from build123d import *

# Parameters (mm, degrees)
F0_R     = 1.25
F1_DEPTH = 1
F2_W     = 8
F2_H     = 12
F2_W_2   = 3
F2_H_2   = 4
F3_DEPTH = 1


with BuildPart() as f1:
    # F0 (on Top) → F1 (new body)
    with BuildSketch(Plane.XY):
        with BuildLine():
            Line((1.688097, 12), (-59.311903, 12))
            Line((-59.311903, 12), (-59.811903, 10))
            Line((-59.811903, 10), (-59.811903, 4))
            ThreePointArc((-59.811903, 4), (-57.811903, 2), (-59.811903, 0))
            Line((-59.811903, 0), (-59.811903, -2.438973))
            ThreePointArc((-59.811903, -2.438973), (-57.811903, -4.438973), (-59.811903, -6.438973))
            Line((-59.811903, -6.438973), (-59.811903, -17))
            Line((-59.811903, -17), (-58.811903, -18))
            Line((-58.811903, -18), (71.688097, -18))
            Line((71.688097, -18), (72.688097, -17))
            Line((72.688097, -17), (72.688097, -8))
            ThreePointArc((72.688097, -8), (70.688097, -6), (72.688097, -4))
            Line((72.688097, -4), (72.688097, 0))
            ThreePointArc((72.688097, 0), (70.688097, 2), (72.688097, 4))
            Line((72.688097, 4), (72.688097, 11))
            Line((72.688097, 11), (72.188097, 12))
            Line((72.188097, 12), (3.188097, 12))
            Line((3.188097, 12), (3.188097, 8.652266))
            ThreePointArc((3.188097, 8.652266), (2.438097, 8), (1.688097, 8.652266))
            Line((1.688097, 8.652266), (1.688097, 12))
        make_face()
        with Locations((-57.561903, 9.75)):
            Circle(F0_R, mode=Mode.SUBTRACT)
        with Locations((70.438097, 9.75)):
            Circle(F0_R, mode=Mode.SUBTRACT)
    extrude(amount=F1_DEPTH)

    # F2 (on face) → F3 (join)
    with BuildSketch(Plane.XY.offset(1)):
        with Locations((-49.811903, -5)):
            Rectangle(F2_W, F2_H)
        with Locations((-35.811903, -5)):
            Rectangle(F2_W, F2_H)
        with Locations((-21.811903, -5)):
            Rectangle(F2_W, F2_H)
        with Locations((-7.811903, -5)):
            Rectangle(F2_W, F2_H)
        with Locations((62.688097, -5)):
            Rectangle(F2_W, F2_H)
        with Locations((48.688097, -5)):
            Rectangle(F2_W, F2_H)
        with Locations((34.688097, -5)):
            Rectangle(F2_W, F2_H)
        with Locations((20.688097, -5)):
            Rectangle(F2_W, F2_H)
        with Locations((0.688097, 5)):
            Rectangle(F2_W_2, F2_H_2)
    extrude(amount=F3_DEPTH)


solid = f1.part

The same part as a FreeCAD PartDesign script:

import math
import FreeCAD as App
import Part
import Sketcher

V = App.Vector
Q = App.Units.Quantity

doc = App.newDocument("Part")
body = doc.addObject("PartDesign::Body", "Body")

# Sketch on XY plane
sketch1 = body.newObject("Sketcher::SketchObject", "Sketch")
sketch1.AttachmentSupport = (doc.getObject("XY_Plane"), [""])
sketch1.MapMode = "FlatFace"
sketch1.addGeometry([
    Part.LineSegment(V(1.7, 12, 0), V(-59.3, 12, 0)),  # 0
    Part.LineSegment(V(-59.3, 12, 0), V(-59.8, 10, 0)),  # 1
    Part.LineSegment(V(-59.8, 10, 0), V(-59.8, 4, 0)),  # 2
    Part.ArcOfCircle(Part.Circle(V(-59.8, 2, 0), V(0, 0, 1), 2), math.radians(-90), math.radians(90)),  # 3
    Part.LineSegment(V(-59.8, 0, 0), V(-59.8, -2.4, 0)),  # 4
    Part.ArcOfCircle(Part.Circle(V(-59.8, -4.4, 0), V(0, 0, 1), 2), math.radians(-90), math.radians(90)),  # 5
    Part.LineSegment(V(-59.8, -6.4, 0), V(-59.8, -17, 0)),  # 6
    Part.LineSegment(V(-59.8, -17, 0), V(-58.8, -18, 0)),  # 7
    Part.LineSegment(V(-58.8, -18, 0), V(71.7, -18, 0)),  # 8
    Part.LineSegment(V(71.7, -18, 0), V(72.7, -17, 0)),  # 9
    Part.LineSegment(V(72.7, -17, 0), V(72.7, -8, 0)),  # 10
    Part.ArcOfCircle(Part.Circle(V(72.7, -6, 0), V(0, 0, 1), 2), math.radians(90), math.radians(270)),  # 11
    Part.LineSegment(V(72.7, -4, 0), V(72.7, 0, 0)),  # 12
    Part.ArcOfCircle(Part.Circle(V(72.7, 2, 0), V(0, 0, 1), 2), math.radians(90), math.radians(270)),  # 13
    Part.LineSegment(V(72.7, 4, 0), V(72.7, 11, 0)),  # 14
    Part.LineSegment(V(72.7, 11, 0), V(72.2, 12, 0)),  # 15
    Part.LineSegment(V(72.2, 12, 0), V(3.2, 12, 0)),  # 16
    Part.LineSegment(V(3.2, 12, 0), V(3.2, 8.7, 0)),  # 17
    Part.ArcOfCircle(Part.Circle(V(2.4, 8.8, 0), V(0, 0, 1), 0.8), math.radians(-172), math.radians(-8)),  # 18
    Part.LineSegment(V(1.7, 8.7, 0), V(1.7, 12, 0)),  # 19
    Part.Circle(V(-57.6, 9.8, 0), V(0, 0, 1), 1.2),  # 20
    Part.Circle(V(70.4, 9.8, 0), V(0, 0, 1), 1.2),  # 21
], False)
sketch1.addConstraint([
    Sketcher.Constraint("Coincident", 0, 2, 1, 1),
    Sketcher.Constraint("Coincident", 1, 2, 2, 1),
    Sketcher.Constraint("Coincident", 2, 2, 3, 2),
    Sketcher.Constraint("Coincident", 3, 1, 4, 1),
    Sketcher.Constraint("Coincident", 4, 2, 5, 2),
    Sketcher.Constraint("Coincident", 5, 1, 6, 1),
    Sketcher.Constraint("Coincident", 6, 2, 7, 1),
    Sketcher.Constraint("Coincident", 7, 2, 8, 1),
    Sketcher.Constraint("Coincident", 8, 2, 9, 1),
    Sketcher.Constraint("Coincident", 9, 2, 10, 1),
    Sketcher.Constraint("Coincident", 10, 2, 11, 2),
    Sketcher.Constraint("Coincident", 11, 1, 12, 1),
    Sketcher.Constraint("Coincident", 12, 2, 13, 2),
    Sketcher.Constraint("Coincident", 13, 1, 14, 1),
    Sketcher.Constraint("Coincident", 14, 2, 15, 1),
    Sketcher.Constraint("Coincident", 15, 2, 16, 1),
    Sketcher.Constraint("Coincident", 16, 2, 17, 1),
    Sketcher.Constraint("Coincident", 17, 2, 18, 2),
    Sketcher.Constraint("Coincident", 18, 1, 19, 1),
    Sketcher.Constraint("Coincident", 19, 2, 0, 1),
    Sketcher.Constraint("Horizontal", 0),
    Sketcher.Constraint("Vertical", 2),
    Sketcher.Constraint("Vertical", 4),
    Sketcher.Constraint("Vertical", 6),
    Sketcher.Constraint("Horizontal", 8),
    Sketcher.Constraint("Vertical", 10),
    Sketcher.Constraint("Vertical", 12),
    Sketcher.Constraint("Vertical", 14),
    Sketcher.Constraint("Horizontal", 16),
    Sketcher.Constraint("Vertical", 17),
    Sketcher.Constraint("Vertical", 19),
    Sketcher.Constraint("Equal", 3, 5),
    Sketcher.Constraint("Equal", 5, 11),
    Sketcher.Constraint("Equal", 11, 13),
    Sketcher.Constraint("Equal", 20, 21),
    Sketcher.Constraint("Symmetric", 11, 1, 13, 1, -1),
    Sketcher.Constraint("PointOnObject", 3, 1, -1),
    Sketcher.Constraint("PointOnObject", 12, 2, -1),
    Sketcher.Constraint("Perpendicular", 7, 9),
    Sketcher.Constraint("Horizontal", 20, 3, 21, 3),
    Sketcher.Constraint("Horizontal", 6, 2, 9, 2),
    Sketcher.Constraint("Horizontal", 0, 2, 15, 2),
    Sketcher.Constraint("Horizontal", 17, 2, 18, 1),
    Sketcher.Constraint("Vertical", 3, 3, 5, 3),
    Sketcher.Constraint("Vertical", 11, 3, 13, 3),
    Sketcher.Constraint("Vertical", 5, 3, 1, 2),
    Sketcher.Constraint("Vertical", 2, 2, 3, 1),
    Sketcher.Constraint("Vertical", 4, 2, 5, 1),
    Sketcher.Constraint("Vertical", 13, 3, 9, 2),
    Sketcher.Constraint("Vertical", 10, 2, 11, 1),
    Sketcher.Constraint("Equal", 7, 9),
    Sketcher.Constraint("Radius", 3, Q("2 mm")),
    Sketcher.Constraint("Diameter", 20, Q("2.5 mm")),
    Sketcher.Constraint("DistanceX", 0, 2, 0, 1, Q("61 mm")),
    Sketcher.Constraint("DistanceX", 16, 2, 16, 1, Q("69 mm")),
    Sketcher.Constraint("DistanceY", 2, 2, 2, 1, Q("6 mm")),
    Sketcher.Constraint("DistanceY", 10, 1, 10, 2, Q("9 mm")),
    Sketcher.Constraint("DistanceY", 14, 1, 14, 2, Q("7 mm")),
    Sketcher.Constraint("DistanceX", 8, 1, 8, 2, Q("130.5 mm")),
    Sketcher.Constraint("DistanceY", -1, 1, 0, 2, Q("12 mm")),
    Sketcher.Constraint("DistanceY", 7, 2, -1, 1, Q("18 mm")),
    Sketcher.Constraint("DistanceX", 20, 3, 18, 3, Q("60 mm")),
    Sketcher.Constraint("DistanceX", 18, 3, 21, 3, Q("68 mm")),
    Sketcher.Constraint("DistanceX", 1, 2, 16, 2, Q("63 mm")),
    Sketcher.Constraint("DistanceX", 3, 3, 0, 2, Q("0.5 mm")),
    Sketcher.Constraint("DistanceY", -1, 1, 20, 3, Q("9.75 mm")),
    Sketcher.Constraint("Radius", 18, Q("0.757322 mm")),
    Sketcher.Constraint("DistanceY", 4, 2, 4, 1, Q("2.438973 mm")),
    Sketcher.Constraint("DistanceY", 17, 2, 17, 1, Q("3.347734 mm")),
    Sketcher.Constraint("DistanceX", 3, 3, -1, 1, Q("59.811903 mm")),
])
pad1 = body.newObject("PartDesign::Pad", "Pad")
pad1.Profile = sketch1
pad1.Length = 1

# Sketch on XY plane
sketch2 = body.newObject("Sketcher::SketchObject", "Sketch001")
sketch2.AttachmentSupport = (doc.getObject("XY_Plane"), [""])
sketch2.MapMode = "FlatFace"
sketch2.AttachmentOffset = App.Placement(V(0, 0, 1), App.Rotation())
sketch2.addGeometry([
    Part.LineSegment(V(-53.8, 1, 0), V(-53.8, -11, 0)),  # 0
    Part.LineSegment(V(-53.8, -11, 0), V(-45.8, -11, 0)),  # 1
    Part.LineSegment(V(-45.8, -11, 0), V(-45.8, 1, 0)),  # 2
    Part.LineSegment(V(-45.8, 1, 0), V(-53.8, 1, 0)),  # 3
    Part.LineSegment(V(-39.8, 1, 0), V(-39.8, -11, 0)),  # 4
    Part.LineSegment(V(-39.8, -11, 0), V(-31.8, -11, 0)),  # 5
    Part.LineSegment(V(-31.8, -11, 0), V(-31.8, 1, 0)),  # 6
    Part.LineSegment(V(-31.8, 1, 0), V(-39.8, 1, 0)),  # 7
    Part.LineSegment(V(-25.8, 1, 0), V(-25.8, -11, 0)),  # 8
    Part.LineSegment(V(-25.8, -11, 0), V(-17.8, -11, 0)),  # 9
    Part.LineSegment(V(-17.8, -11, 0), V(-17.8, 1, 0)),  # 10
    Part.LineSegment(V(-17.8, 1, 0), V(-25.8, 1, 0)),  # 11
    Part.LineSegment(V(-11.8, 1, 0), V(-11.8, -11, 0)),  # 12
    Part.LineSegment(V(-11.8, -11, 0), V(-3.8, -11, 0)),  # 13
    Part.LineSegment(V(-3.8, -11, 0), V(-3.8, 1, 0)),  # 14
    Part.LineSegment(V(-3.8, 1, 0), V(-11.8, 1, 0)),  # 15
    Part.LineSegment(V(58.7, 1, 0), V(58.7, -11, 0)),  # 16
    Part.LineSegment(V(58.7, -11, 0), V(66.7, -11, 0)),  # 17
    Part.LineSegment(V(66.7, -11, 0), V(66.7, 1, 0)),  # 18
    Part.LineSegment(V(66.7, 1, 0), V(58.7, 1, 0)),  # 19
    Part.LineSegment(V(44.7, 1, 0), V(44.7, -11, 0)),  # 20
    Part.LineSegment(V(44.7, -11, 0), V(52.7, -11, 0)),  # 21
    Part.LineSegment(V(52.7, -11, 0), V(52.7, 1, 0)),  # 22
    Part.LineSegment(V(52.7, 1, 0), V(44.7, 1, 0)),  # 23
    Part.LineSegment(V(30.7, 1, 0), V(30.7, -11, 0)),  # 24
    Part.LineSegment(V(30.7, -11, 0), V(38.7, -11, 0)),  # 25
    Part.LineSegment(V(38.7, -11, 0), V(38.7, 1, 0)),  # 26
    Part.LineSegment(V(38.7, 1, 0), V(30.7, 1, 0)),  # 27
    Part.LineSegment(V(16.7, 1, 0), V(16.7, -11, 0)),  # 28
    Part.LineSegment(V(16.7, -11, 0), V(24.7, -11, 0)),  # 29
    Part.LineSegment(V(24.7, -11, 0), V(24.7, 1, 0)),  # 30
    Part.LineSegment(V(24.7, 1, 0), V(16.7, 1, 0)),  # 31
    Part.LineSegment(V(-0.8, 7, 0), V(-0.8, 3, 0)),  # 32
    Part.LineSegment(V(-0.8, 3, 0), V(2.2, 3, 0)),  # 33
    Part.LineSegment(V(2.2, 3, 0), V(2.2, 7, 0)),  # 34
    Part.LineSegment(V(2.2, 7, 0), V(-0.8, 7, 0)),  # 35
], False)
sketch2.addConstraint([
    Sketcher.Constraint("Coincident", 0, 2, 1, 1),
    Sketcher.Constraint("Coincident", 1, 2, 2, 1),
    Sketcher.Constraint("Coincident", 2, 2, 3, 1),
    Sketcher.Constraint("Coincident", 3, 2, 0, 1),
    Sketcher.Constraint("Coincident", 4, 2, 5, 1),
    Sketcher.Constraint("Coincident", 5, 2, 6, 1),
    Sketcher.Constraint("Coincident", 6, 2, 7, 1),
    Sketcher.Constraint("Coincident", 7, 2, 4, 1),
    Sketcher.Constraint("Coincident", 8, 2, 9, 1),
    Sketcher.Constraint("Coincident", 9, 2, 10, 1),
    Sketcher.Constraint("Coincident", 10, 2, 11, 1),
    Sketcher.Constraint("Coincident", 11, 2, 8, 1),
    Sketcher.Constraint("Coincident", 12, 2, 13, 1),
    Sketcher.Constraint("Coincident", 13, 2, 14, 1),
    Sketcher.Constraint("Coincident", 14, 2, 15, 1),
    Sketcher.Constraint("Coincident", 15, 2, 12, 1),
    Sketcher.Constraint("Coincident", 16, 2, 17, 1),
    Sketcher.Constraint("Coincident", 17, 2, 18, 1),
    Sketcher.Constraint("Coincident", 18, 2, 19, 1),
    Sketcher.Constraint("Coincident", 19, 2, 16, 1),
    Sketcher.Constraint("Coincident", 20, 2, 21, 1),
    Sketcher.Constraint("Coincident", 21, 2, 22, 1),
    Sketcher.Constraint("Coincident", 22, 2, 23, 1),
    Sketcher.Constraint("Coincident", 23, 2, 20, 1),
    Sketcher.Constraint("Coincident", 24, 2, 25, 1),
    Sketcher.Constraint("Coincident", 25, 2, 26, 1),
    Sketcher.Constraint("Coincident", 26, 2, 27, 1),
    Sketcher.Constraint("Coincident", 27, 2, 24, 1),
    Sketcher.Constraint("Coincident", 28, 2, 29, 1),
    Sketcher.Constraint("Coincident", 29, 2, 30, 1),
    Sketcher.Constraint("Coincident", 30, 2, 31, 1),
    Sketcher.Constraint("Coincident", 31, 2, 28, 1),
    Sketcher.Constraint("Coincident", 32, 2, 33, 1),
    Sketcher.Constraint("Coincident", 33, 2, 34, 1),
    Sketcher.Constraint("Coincident", 34, 2, 35, 1),
    Sketcher.Constraint("Coincident", 35, 2, 32, 1),
    Sketcher.Constraint("Vertical", 0),
    Sketcher.Constraint("Horizontal", 1),
    Sketcher.Constraint("Vertical", 2),
    Sketcher.Constraint("Horizontal", 3),
    Sketcher.Constraint("Vertical", 4),
    Sketcher.Constraint("Horizontal", 5),
    Sketcher.Constraint("Vertical", 6),
    Sketcher.Constraint("Horizontal", 7),
    Sketcher.Constraint("Vertical", 8),
    Sketcher.Constraint("Horizontal", 9),
    Sketcher.Constraint("Vertical", 10),
    Sketcher.Constraint("Horizontal", 11),
    Sketcher.Constraint("Vertical", 12),
    Sketcher.Constraint("Horizontal", 13),
    Sketcher.Constraint("Vertical", 14),
    Sketcher.Constraint("Horizontal", 15),
    Sketcher.Constraint("Vertical", 16),
    Sketcher.Constraint("Horizontal", 17),
    Sketcher.Constraint("Vertical", 18),
    Sketcher.Constraint("Horizontal", 19),
    Sketcher.Constraint("Vertical", 20),
    Sketcher.Constraint("Horizontal", 21),
    Sketcher.Constraint("Vertical", 22),
    Sketcher.Constraint("Horizontal", 23),
    Sketcher.Constraint("Vertical", 24),
    Sketcher.Constraint("Horizontal", 25),
    Sketcher.Constraint("Vertical", 26),
    Sketcher.Constraint("Horizontal", 27),
    Sketcher.Constraint("Vertical", 28),
    Sketcher.Constraint("Horizontal", 29),
    Sketcher.Constraint("Vertical", 30),
    Sketcher.Constraint("Horizontal", 31),
    Sketcher.Constraint("Vertical", 32),
    Sketcher.Constraint("Horizontal", 33),
    Sketcher.Constraint("Vertical", 34),
    Sketcher.Constraint("Horizontal", 35),
    Sketcher.Constraint("Horizontal", 1, 2, 4, 2),
    Sketcher.Constraint("Horizontal", 3, 2, 6, 2),
    Sketcher.Constraint("Horizontal", 5, 2, 8, 2),
    Sketcher.Constraint("Horizontal", 7, 2, 10, 2),
    Sketcher.Constraint("Horizontal", 9, 2, 12, 2),
    Sketcher.Constraint("Horizontal", 11, 2, 14, 2),
    Sketcher.Constraint("Horizontal", 13, 2, 16, 2),
    Sketcher.Constraint("Horizontal", 15, 2, 18, 2),
    Sketcher.Constraint("Horizontal", 17, 2, 20, 2),
    Sketcher.Constraint("Horizontal", 19, 2, 22, 2),
    Sketcher.Constraint("Horizontal", 21, 2, 24, 2),
    Sketcher.Constraint("Horizontal", 23, 2, 26, 2),
    Sketcher.Constraint("Horizontal", 25, 2, 28, 2),
    Sketcher.Constraint("Horizontal", 27, 2, 30, 2),
    Sketcher.Constraint("Equal", 3, 5),
    Sketcher.Constraint("Equal", 7, 9),
    Sketcher.Constraint("Equal", 11, 13),
    Sketcher.Constraint("Equal", 15, 17),
    Sketcher.Constraint("Equal", 19, 21),
    Sketcher.Constraint("Equal", 23, 25),
    Sketcher.Constraint("Equal", 27, 29),
    Sketcher.Constraint("DistanceX", 1, 1, 1, 2, Q("8 mm")),
    Sketcher.Constraint("DistanceX", 33, 1, 33, 2, Q("3 mm")),
    Sketcher.Constraint("DistanceY", 0, 2, 0, 1, Q("12 mm")),
    Sketcher.Constraint("DistanceY", 32, 2, 32, 1, Q("4 mm")),
    Sketcher.Constraint("DistanceY", 0, 2, -1, 1, Q("11 mm")),
    Sketcher.Constraint("DistanceY", -1, 1, 32, 2, Q("3 mm")),
    Sketcher.Constraint("DistanceX", 1, 2, 4, 2, Q("6 mm")),
    Sketcher.Constraint("DistanceX", 5, 2, 8, 2, Q("6 mm")),
    Sketcher.Constraint("DistanceX", 9, 2, 12, 2, Q("6 mm")),
    Sketcher.Constraint("DistanceX", 20, 2, 16, 2, Q("14 mm")),
    Sketcher.Constraint("DistanceX", 24, 2, 20, 2, Q("14 mm")),
    Sketcher.Constraint("DistanceX", 28, 2, 24, 2, Q("14 mm")),
    Sketcher.Constraint("DistanceX", 14, 2, 32, 2, Q("3 mm")),
    Sketcher.Constraint("DistanceX", 13, 2, 16, 2, Q("62.5 mm")),
    Sketcher.Constraint("DistanceX", 0, 2, -1, 1, Q("53.811903 mm")),
])
pad2 = body.newObject("PartDesign::Pad", "Pad001")
pad2.Profile = sketch2
pad2.Length = 1

doc.recompute()
